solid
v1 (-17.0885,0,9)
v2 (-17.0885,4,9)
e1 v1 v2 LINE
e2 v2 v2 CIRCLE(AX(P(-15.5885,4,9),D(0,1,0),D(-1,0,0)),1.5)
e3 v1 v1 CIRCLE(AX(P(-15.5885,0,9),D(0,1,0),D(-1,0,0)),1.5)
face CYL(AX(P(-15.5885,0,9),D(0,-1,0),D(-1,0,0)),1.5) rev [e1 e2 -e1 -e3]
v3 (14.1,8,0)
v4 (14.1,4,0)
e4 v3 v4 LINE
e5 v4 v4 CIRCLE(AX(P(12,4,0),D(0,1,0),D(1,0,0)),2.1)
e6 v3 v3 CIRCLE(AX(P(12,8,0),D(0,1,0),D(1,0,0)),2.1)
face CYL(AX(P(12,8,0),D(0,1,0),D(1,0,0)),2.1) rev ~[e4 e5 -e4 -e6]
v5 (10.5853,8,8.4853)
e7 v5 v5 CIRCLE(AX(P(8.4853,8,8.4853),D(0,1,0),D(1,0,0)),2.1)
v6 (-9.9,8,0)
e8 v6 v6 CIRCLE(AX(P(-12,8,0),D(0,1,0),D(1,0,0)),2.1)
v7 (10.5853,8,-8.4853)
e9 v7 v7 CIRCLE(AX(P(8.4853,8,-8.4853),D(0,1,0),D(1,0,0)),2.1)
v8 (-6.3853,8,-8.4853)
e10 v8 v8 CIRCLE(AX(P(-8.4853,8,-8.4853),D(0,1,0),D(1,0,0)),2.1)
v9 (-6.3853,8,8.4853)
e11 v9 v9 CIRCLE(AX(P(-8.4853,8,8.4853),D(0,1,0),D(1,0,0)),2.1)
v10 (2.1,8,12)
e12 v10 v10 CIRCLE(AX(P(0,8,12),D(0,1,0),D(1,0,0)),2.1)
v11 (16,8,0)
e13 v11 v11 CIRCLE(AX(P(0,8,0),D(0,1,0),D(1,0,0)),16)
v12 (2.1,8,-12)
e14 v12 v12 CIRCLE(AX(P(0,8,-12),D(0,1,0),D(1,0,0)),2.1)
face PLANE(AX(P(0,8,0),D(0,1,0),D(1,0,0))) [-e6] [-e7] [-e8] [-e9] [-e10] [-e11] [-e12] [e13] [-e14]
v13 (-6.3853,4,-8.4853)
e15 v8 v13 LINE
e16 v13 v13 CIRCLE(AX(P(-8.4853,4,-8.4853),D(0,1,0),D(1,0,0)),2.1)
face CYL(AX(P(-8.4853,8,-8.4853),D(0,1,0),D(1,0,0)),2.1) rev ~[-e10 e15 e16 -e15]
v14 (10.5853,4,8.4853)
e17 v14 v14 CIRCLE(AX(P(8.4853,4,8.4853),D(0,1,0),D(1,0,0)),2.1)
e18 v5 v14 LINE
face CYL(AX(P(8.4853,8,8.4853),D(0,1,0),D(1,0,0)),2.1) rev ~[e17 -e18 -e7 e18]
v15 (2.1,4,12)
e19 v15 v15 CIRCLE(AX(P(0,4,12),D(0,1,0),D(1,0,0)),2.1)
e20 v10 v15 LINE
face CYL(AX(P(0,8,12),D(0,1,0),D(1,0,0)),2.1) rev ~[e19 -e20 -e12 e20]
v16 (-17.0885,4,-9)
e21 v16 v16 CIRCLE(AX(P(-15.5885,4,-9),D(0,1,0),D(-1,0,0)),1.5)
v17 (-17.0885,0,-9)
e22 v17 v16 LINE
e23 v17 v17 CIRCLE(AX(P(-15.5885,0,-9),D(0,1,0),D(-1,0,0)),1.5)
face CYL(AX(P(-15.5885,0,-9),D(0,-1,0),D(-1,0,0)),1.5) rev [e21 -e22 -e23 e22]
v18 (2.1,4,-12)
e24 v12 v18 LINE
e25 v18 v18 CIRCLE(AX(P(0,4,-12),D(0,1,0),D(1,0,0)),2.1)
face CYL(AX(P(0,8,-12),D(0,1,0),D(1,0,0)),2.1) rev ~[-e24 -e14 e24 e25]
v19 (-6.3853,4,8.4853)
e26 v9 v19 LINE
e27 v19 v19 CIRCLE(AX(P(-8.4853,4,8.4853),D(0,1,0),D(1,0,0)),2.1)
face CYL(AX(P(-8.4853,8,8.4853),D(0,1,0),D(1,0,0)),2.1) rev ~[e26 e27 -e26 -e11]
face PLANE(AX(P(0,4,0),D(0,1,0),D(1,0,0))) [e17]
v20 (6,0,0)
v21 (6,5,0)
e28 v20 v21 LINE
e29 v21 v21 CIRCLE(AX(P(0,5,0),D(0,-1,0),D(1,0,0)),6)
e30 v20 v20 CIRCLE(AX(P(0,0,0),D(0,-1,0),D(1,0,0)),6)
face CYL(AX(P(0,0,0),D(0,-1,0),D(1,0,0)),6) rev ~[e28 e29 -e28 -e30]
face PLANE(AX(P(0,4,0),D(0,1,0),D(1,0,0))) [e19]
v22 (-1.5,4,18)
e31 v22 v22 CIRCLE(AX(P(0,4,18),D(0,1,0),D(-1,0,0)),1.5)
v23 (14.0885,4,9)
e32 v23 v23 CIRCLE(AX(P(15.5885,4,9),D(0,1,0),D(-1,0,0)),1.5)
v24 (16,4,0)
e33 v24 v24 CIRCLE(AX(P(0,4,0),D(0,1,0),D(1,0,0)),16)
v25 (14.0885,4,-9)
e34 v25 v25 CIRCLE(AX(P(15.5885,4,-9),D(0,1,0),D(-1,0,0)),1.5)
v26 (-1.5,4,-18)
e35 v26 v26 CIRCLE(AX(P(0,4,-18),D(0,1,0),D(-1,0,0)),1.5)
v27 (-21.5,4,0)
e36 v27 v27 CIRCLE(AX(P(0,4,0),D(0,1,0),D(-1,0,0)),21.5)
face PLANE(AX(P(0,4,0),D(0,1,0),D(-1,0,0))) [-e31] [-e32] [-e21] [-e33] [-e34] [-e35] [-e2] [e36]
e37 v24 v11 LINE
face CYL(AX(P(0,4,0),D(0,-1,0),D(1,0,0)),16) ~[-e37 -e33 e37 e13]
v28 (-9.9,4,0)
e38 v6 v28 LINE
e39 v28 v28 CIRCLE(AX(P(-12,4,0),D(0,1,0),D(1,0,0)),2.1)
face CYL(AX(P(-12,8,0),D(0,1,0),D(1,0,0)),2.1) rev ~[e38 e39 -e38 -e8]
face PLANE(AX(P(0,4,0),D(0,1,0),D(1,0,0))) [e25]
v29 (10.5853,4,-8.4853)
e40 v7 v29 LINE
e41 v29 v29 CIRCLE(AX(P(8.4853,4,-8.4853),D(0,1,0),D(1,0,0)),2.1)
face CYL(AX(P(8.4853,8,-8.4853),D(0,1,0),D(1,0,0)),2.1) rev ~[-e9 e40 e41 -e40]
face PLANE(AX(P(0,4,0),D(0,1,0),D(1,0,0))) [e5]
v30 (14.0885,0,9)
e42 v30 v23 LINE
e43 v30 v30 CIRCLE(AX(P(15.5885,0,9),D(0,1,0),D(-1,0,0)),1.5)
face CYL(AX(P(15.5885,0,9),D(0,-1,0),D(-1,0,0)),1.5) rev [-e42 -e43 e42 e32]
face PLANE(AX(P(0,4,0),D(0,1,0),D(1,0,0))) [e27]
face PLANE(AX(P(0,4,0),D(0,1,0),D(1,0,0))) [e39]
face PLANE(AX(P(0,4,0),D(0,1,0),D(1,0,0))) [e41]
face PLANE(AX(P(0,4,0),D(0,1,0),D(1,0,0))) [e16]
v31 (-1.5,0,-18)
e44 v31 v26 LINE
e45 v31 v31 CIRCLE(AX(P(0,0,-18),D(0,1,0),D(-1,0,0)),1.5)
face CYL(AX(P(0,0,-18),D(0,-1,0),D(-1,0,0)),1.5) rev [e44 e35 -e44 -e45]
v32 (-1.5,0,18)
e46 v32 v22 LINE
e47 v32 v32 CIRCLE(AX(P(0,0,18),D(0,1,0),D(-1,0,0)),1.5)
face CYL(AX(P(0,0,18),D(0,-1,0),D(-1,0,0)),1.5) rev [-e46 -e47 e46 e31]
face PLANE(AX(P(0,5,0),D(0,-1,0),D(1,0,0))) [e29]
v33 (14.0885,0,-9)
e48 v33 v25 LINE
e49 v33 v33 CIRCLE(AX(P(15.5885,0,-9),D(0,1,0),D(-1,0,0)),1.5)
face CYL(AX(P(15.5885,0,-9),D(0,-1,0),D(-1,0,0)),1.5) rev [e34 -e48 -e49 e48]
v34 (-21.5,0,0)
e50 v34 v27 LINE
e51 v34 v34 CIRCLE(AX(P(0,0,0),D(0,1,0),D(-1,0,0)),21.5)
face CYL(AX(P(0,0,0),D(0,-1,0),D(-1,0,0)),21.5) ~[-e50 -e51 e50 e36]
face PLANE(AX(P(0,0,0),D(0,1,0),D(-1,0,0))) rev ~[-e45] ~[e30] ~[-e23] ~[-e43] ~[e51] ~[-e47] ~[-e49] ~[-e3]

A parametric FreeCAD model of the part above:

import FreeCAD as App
import Part
import Sketcher
Q = App.Units.Quantity

doc = App.newDocument("Part")
body = doc.addObject("PartDesign::Body", "Body")

sketch1 = body.newObject("Sketcher::SketchObject", "Sketch")
sketch1.AttachmentSupport = (doc.getObject("XZ_Plane"), [""])
sketch1.MapMode = "FlatFace"
sketch1.addGeometry(Part.Circle(App.Vector(0, 0, 0), App.Vector(0, 0, 1), 21.5), False)
sketch1.addGeometry(Part.Circle(App.Vector(15.6, -9, 0), App.Vector(0, 0, 1), 1.5), False)
sketch1.addGeometry(Part.Circle(App.Vector(0, -18, 0), App.Vector(0, 0, 1), 1.5), False)
sketch1.addGeometry(Part.Circle(App.Vector(-15.6, -9, 0), App.Vector(0, 0, 1), 1.5), False)
sketch1.addGeometry(Part.Circle(App.Vector(15.6, 9, 0), App.Vector(0, 0, 1), 1.5), False)
sketch1.addGeometry(Part.Circle(App.Vector(-15.6, 9, 0), App.Vector(0, 0, 1), 1.5), False)
sketch1.addGeometry(Part.Circle(App.Vector(0, 18, 0), App.Vector(0, 0, 1), 1.5), False)
sketch1.addConstraint(Sketcher.Constraint("Coincident", 0, 3, -1, 1))
sketch1.addConstraint(Sketcher.Constraint("Equal", 1, 2))
sketch1.addConstraint(Sketcher.Constraint("Equal", 2, 3))
sketch1.addConstraint(Sketcher.Constraint("Equal", 3, 4))
sketch1.addConstraint(Sketcher.Constraint("Equal", 4, 5))
sketch1.addConstraint(Sketcher.Constraint("Equal", 5, 6))
sketch1.addConstraint(Sketcher.Constraint("Symmetric", 3, 3, 4, 3, -1, 1))
sketch1.addConstraint(Sketcher.Constraint("Symmetric", 1, 3, 5, 3, -1, 1))
sketch1.addConstraint(Sketcher.Constraint("Symmetric", 2, 3, 6, 3, -1, 1))
sketch1.addConstraint(Sketcher.Constraint("Symmetric", 1, 3, 3, 3, -2))
sketch1.addConstraint(Sketcher.Constraint("PointOnObject", 2, 3, -2))
sketch1.addConstraint(Sketcher.Constraint("Diameter", 0, Q("43 mm")))
sketch1.addConstraint(Sketcher.Constraint("Diameter", 1, Q("3 mm")))
sketch1.addConstraint(Sketcher.Constraint("DistanceY", 2, 3, -1, 1, Q("18 mm")))
sketch1.addConstraint(Sketcher.Constraint("DistanceY", 1, 3, 4, 3, Q("18 mm")))
sketch1.addConstraint(Sketcher.Constraint("DistanceX", 3, 3, 1, 3, Q("31.177 mm")))
pad1 = body.newObject("PartDesign::Pad", "Pad")
pad1.Profile = sketch1
pad1.Length = 4
pad1.Reversed = True

sketch2 = body.newObject("Sketcher::SketchObject", "Sketch001")
sketch2.AttachmentSupport = (doc.getObject("XZ_Plane"), [""])
sketch2.MapMode = "FlatFace"
sketch2.AttachmentOffset = App.Placement(App.Vector(0, 0, -4), App.Rotation())
sketch2.addGeometry(Part.Circle(App.Vector(0, 0, 0), App.Vector(0, 0, 1), 16), False)
sketch2.addConstraint(Sketcher.Constraint("Coincident", 0, 3, -1, 1))
sketch2.addConstraint(Sketcher.Constraint("Diameter", 0, Q("32 mm")))
pad2 = body.newObject("PartDesign::Pad", "Pad001")
pad2.Profile = sketch2
pad2.Length = 4
pad2.Reversed = True

sketch3 = body.newObject("Sketcher::SketchObject", "Sketch002")
sketch3.AttachmentSupport = (doc.getObject("XZ_Plane"), [""])
sketch3.MapMode = "FlatFace"
sketch3.AttachmentOffset = App.Placement(App.Vector(0, 0, -8), App.Rotation())
sketch3.addGeometry(Part.Circle(App.Vector(0, -12, 0), App.Vector(0, 0, 1), 2.1), False)
sketch3.addGeometry(Part.Circle(App.Vector(-8.5, -8.5, 0), App.Vector(0, 0, 1), 2.1), False)
sketch3.addGeometry(Part.Circle(App.Vector(-12, 0, 0), App.Vector(0, 0, 1), 2.1), False)
sketch3.addGeometry(Part.Circle(App.Vector(-8.5, 8.5, 0), App.Vector(0, 0, 1), 2.1), False)
sketch3.addGeometry(Part.Circle(App.Vector(0, 12, 0), App.Vector(0, 0, 1), 2.1), False)
sketch3.addGeometry(Part.Circle(App.Vector(8.5, 8.5, 0), App.Vector(0, 0, 1), 2.1), False)
sketch3.addGeometry(Part.Circle(App.Vector(12, 0, 0), App.Vector(0, 0, 1), 2.1), False)
sketch3.addGeometry(Part.Circle(App.Vector(8.5, -8.5, 0), App.Vector(0, 0, 1), 2.1), False)
sketch3.addConstraint(Sketcher.Constraint("Equal", 0, 1))
sketch3.addConstraint(Sketcher.Constraint("Equal", 1, 2))
sketch3.addConstraint(Sketcher.Constraint("Equal", 2, 3))
sketch3.addConstraint(Sketcher.Constraint("Equal", 3, 4))
sketch3.addConstraint(Sketcher.Constraint("Equal", 4, 5))
sketch3.addConstraint(Sketcher.Constraint("Equal", 5, 6))
sketch3.addConstraint(Sketcher.Constraint("Equal", 6, 7))
sketch3.addConstraint(Sketcher.Constraint("Symmetric", 0, 3, 4, 3, -1, 1))
sketch3.addConstraint(Sketcher.Constraint("Symmetric", 1, 3, 5, 3, -1, 1))
sketch3.addConstraint(Sketcher.Constraint("Symmetric", 2, 3, 6, 3, -1, 1))
sketch3.addConstraint(Sketcher.Constraint("Symmetric", 3, 3, 7, 3, -1, 1))
sketch3.addConstraint(Sketcher.Constraint("Symmetric", 3, 3, 5, 3, -2))
sketch3.addConstraint(Sketcher.Constraint("PointOnObject", 0, 3, -2))
sketch3.addConstraint(Sketcher.Constraint("PointOnObject", 2, 3, -1))
sketch3.addConstraint(Sketcher.Constraint("Diameter", 0, Q("4.2 mm")))
sketch3.addConstraint(Sketcher.Constraint("DistanceY", 0, 3, -1, 1, Q("12 mm")))
sketch3.addConstraint(Sketcher.Constraint("DistanceX", 2, 3, -1, 1, Q("12 mm")))
sketch3.addConstraint(Sketcher.Constraint("DistanceX", 1, 3, -1, 1, Q("8.4853 mm")))
sketch3.addConstraint(Sketcher.Constraint("DistanceY", 1, 3, -1, 1, Q("8.4853 mm")))
pocket1 = body.newObject("PartDesign::Pocket", "Pocket")
pocket1.Profile = sketch3
pocket1.Length = 4
pocket1.Reversed = True

sketch4 = body.newObject("Sketcher::SketchObject", "Sketch003")
sketch4.AttachmentSupport = (doc.getObject("XZ_Plane"), [""])
sketch4.MapMode = "FlatFace"
sketch4.addGeometry(Part.Circle(App.Vector(0, 0, 0), App.Vector(0, 0, 1), 6), False)
sketch4.addConstraint(Sketcher.Constraint("Coincident", 0, 3, -1, 1))
sketch4.addConstraint(Sketcher.Constraint("Diameter", 0, Q("12 mm")))
pocket2 = body.newObject("PartDesign::Pocket", "Pocket001")
pocket2.Profile = sketch4
pocket2.Length = 5

doc.recompute()
